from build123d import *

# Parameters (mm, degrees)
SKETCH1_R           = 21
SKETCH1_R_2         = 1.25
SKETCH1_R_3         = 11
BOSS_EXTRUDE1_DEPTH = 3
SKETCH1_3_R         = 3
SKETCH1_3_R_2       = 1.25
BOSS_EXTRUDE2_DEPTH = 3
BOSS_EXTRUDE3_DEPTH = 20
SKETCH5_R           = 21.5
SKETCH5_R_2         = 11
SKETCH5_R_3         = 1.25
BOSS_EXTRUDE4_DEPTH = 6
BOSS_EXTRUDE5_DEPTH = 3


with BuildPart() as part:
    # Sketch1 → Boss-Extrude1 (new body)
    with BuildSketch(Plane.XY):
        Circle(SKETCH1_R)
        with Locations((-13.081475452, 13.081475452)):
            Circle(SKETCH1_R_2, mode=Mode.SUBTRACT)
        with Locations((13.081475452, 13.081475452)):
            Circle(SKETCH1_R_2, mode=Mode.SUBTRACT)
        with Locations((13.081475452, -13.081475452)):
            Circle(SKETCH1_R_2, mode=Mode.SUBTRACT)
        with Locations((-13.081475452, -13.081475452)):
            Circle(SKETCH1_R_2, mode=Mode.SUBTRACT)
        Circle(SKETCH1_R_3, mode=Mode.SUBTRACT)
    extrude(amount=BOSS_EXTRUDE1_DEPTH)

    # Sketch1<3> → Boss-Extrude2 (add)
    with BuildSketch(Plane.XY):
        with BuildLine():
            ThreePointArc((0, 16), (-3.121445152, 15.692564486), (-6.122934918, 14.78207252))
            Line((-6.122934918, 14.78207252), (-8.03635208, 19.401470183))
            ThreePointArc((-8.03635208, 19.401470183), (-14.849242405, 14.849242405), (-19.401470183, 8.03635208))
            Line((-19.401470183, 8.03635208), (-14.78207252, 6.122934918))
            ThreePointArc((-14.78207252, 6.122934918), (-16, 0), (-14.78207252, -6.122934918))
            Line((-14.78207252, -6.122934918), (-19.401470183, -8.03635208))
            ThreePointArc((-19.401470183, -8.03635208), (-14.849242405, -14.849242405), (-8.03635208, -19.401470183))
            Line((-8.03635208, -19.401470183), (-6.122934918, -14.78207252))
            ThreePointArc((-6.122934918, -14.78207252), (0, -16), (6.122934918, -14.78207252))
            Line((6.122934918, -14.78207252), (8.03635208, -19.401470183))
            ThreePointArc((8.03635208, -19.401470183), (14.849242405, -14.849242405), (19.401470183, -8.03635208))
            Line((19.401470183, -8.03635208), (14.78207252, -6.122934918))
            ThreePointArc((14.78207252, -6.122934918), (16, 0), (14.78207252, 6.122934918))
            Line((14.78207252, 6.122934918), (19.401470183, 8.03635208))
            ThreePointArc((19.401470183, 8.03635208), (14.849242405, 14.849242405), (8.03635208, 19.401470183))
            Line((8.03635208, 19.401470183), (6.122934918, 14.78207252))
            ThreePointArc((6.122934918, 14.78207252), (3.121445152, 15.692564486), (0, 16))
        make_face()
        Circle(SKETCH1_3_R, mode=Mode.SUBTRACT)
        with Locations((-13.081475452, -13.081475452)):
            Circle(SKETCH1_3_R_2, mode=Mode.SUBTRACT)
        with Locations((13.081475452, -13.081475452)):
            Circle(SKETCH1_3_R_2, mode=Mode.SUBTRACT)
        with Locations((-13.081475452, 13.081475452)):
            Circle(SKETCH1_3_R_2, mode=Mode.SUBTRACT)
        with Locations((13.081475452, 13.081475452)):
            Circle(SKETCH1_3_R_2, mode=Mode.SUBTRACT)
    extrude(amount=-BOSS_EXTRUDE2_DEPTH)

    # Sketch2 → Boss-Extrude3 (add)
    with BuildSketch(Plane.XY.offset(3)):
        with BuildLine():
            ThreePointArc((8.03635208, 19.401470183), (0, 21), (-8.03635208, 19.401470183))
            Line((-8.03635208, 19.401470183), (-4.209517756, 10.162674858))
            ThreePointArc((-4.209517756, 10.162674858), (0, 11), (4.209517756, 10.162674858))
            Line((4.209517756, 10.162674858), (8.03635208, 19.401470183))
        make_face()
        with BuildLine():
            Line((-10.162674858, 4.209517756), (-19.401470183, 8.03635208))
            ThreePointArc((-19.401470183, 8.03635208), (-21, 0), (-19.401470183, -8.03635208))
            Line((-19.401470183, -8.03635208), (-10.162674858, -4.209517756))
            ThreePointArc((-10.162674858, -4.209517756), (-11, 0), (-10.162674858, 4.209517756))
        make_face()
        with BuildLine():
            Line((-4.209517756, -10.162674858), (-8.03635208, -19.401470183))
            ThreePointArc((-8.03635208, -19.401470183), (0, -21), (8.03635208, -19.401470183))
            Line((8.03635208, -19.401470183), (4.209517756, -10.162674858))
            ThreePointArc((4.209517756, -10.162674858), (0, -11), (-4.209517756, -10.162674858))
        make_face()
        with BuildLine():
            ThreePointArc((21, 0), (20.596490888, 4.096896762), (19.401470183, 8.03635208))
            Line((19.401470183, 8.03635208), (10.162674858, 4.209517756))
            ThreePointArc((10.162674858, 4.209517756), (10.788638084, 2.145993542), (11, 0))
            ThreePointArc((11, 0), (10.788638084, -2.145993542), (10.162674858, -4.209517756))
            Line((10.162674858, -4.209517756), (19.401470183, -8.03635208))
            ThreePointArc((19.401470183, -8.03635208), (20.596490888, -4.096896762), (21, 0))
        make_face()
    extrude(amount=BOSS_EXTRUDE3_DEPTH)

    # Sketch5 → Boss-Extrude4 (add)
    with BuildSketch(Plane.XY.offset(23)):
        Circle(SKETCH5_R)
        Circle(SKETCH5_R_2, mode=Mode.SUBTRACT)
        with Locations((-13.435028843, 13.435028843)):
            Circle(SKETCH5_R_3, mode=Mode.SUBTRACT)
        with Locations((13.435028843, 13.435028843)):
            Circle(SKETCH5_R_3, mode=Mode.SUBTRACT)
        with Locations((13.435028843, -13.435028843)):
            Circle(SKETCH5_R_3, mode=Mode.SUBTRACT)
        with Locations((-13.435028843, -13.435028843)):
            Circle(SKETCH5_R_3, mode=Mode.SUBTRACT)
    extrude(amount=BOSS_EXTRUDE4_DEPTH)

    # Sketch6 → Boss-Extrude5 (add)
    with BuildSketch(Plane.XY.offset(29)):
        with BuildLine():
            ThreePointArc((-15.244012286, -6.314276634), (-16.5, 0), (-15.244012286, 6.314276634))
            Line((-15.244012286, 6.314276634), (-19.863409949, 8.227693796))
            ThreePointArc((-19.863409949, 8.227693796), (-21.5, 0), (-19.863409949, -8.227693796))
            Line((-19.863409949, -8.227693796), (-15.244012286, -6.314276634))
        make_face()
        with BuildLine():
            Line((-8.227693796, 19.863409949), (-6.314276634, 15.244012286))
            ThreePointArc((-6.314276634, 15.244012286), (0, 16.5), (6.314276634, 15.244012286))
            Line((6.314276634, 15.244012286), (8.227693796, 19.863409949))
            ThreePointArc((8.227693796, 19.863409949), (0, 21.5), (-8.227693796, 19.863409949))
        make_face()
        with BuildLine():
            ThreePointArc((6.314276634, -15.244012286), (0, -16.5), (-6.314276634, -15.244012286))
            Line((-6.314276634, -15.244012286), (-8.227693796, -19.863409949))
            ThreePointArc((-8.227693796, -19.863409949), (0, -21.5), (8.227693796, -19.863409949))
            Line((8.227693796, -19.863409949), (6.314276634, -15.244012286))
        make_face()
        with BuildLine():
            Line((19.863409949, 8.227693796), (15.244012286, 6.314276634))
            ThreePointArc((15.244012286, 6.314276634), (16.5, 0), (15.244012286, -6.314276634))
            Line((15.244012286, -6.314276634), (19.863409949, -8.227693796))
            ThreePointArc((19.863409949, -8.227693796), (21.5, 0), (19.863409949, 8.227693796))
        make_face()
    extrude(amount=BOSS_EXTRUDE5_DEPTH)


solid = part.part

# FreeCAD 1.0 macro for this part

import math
import FreeCAD as App
import Part
import Sketcher
Q = App.Units.Quantity

doc = App.newDocument("Part")
body = doc.addObject("PartDesign::Body", "Body")

sketch1 = body.newObject("Sketcher::SketchObject", "Sketch")
sketch1.AttachmentSupport = (doc.getObject("XY_Plane"), [""])
sketch1.MapMode = "FlatFace"
sketch1.addGeometry(Part.Circle(App.Vector(0, 0, 0), App.Vector(0, 0, 1), 21), False)
sketch1.addGeometry(Part.Circle(App.Vector(-13.1, -13.1, 0), App.Vector(0, 0, 1), 1.2), False)
sketch1.addGeometry(Part.Circle(App.Vector(0, 0, 0), App.Vector(0, 0, 1), 11), False)
sketch1.addGeometry(Part.Circle(App.Vector(13.1, -13.1, 0), App.Vector(0, 0, 1), 1.2), False)
sketch1.addGeometry(Part.Circle(App.Vector(-13.1, 13.1, 0), App.Vector(0, 0, 1), 1.2), False)
sketch1.addGeometry(Part.Circle(App.Vector(13.1, 13.1, 0), App.Vector(0, 0, 1), 1.2), False)
sketch1.addConstraint(Sketcher.Constraint("Coincident", 0, 3, -1, 1))
sketch1.addConstraint(Sketcher.Constraint("Coincident", 2, 3, -1, 1))
sketch1.addConstraint(Sketcher.Constraint("Equal", 1, 3))
sketch1.addConstraint(Sketcher.Constraint("Equal", 3, 4))
sketch1.addConstraint(Sketcher.Constraint("Equal", 4, 5))
sketch1.addConstraint(Sketcher.Constraint("Symmetric", 3, 3, 4, 3, -1, 1))
sketch1.addConstraint(Sketcher.Constraint("Symmetric", 1, 3, 5, 3, -1, 1))
sketch1.addConstraint(Sketcher.Constraint("Symmetric", 1, 3, 3, 3, -2))
sketch1.addConstraint(Sketcher.Constraint("Diameter", 0, 42.0))
sketch1.addConstraint(Sketcher.Constraint("Diameter", 2, 22.0))
sketch1.addConstraint(Sketcher.Constraint("Diameter", 1, 2.5))
sketch1.addConstraint(Sketcher.Constraint("DistanceX", 1, 3, 3, 3, 26.162951))
sketch1.addConstraint(Sketcher.Constraint("DistanceY", 1, 3, 4, 3, 26.162951))
pad1 = body.newObject("PartDesign::Pad", "Pad")
pad1.Profile = sketch1
pad1.Length = 3

sketch2 = body.newObject("Sketcher::SketchObject", "Sketch001")
sketch2.AttachmentSupport = (doc.getObject("XY_Plane"), [""])
sketch2.MapMode = "FlatFace"
sketch2.addGeometry(Part.ArcOfCircle(Part.Circle(App.Vector(0, 0, 0), App.Vector(0, 0, 1), 16), math.radians(90), math.radians(112)), False)
sketch2.addGeometry(Part.LineSegment(App.Vector(-6.1, 14.8, 0), App.Vector(-8, 19.4, 0)), False)
sketch2.addGeometry(Part.ArcOfCircle(Part.Circle(App.Vector(0, 0, 0), App.Vector(0, 0, 1), 21), math.radians(113), math.radians(157)), False)
sketch2.addGeometry(Part.LineSegment(App.Vector(-19.4, 8, 0), App.Vector(-14.8, 6.1, 0)), False)
sketch2.addGeometry(Part.ArcOfCircle(Part.Circle(App.Vector(0, 0, 0), App.Vector(0, 0, 1), 16), math.radians(157), math.radians(203)), False)
sketch2.addGeometry(Part.LineSegment(App.Vector(-14.8, -6.1, 0), App.Vector(-19.4, -8, 0)), False)
sketch2.addGeometry(Part.ArcOfCircle(Part.Circle(App.Vector(0, 0, 0), App.Vector(0, 0, 1), 21), math.radians(-157), math.radians(-113)), False)
sketch2.addGeometry(Part.LineSegment(App.Vector(-8, -19.4, 0), App.Vector(-6.1, -14.8, 0)), False)
sketch2.addGeometry(Part.ArcOfCircle(Part.Circle(App.Vector(0, 0, 0), App.Vector(0, 0, 1), 16), math.radians(-113), math.radians(-67)), False)
sketch2.addGeometry(Part.LineSegment(App.Vector(6.1, -14.8, 0), App.Vector(8, -19.4, 0)), False)
sketch2.addGeometry(Part.ArcOfCircle(Part.Circle(App.Vector(0, 0, 0), App.Vector(0, 0, 1), 21), math.radians(-67), math.radians(-23)), False)
sketch2.addGeometry(Part.LineSegment(App.Vector(19.4, -8, 0), App.Vector(14.8, -6.1, 0)), False)
sketch2.addGeometry(Part.ArcOfCircle(Part.Circle(App.Vector(0, 0, 0), App.Vector(0, 0, 1), 16), math.radians(-23), math.radians(23)), False)
sketch2.addGeometry(Part.LineSegment(App.Vector(14.8, 6.1, 0), App.Vector(19.4, 8, 0)), False)
sketch2.addGeometry(Part.ArcOfCircle(Part.Circle(App.Vector(0, 0, 0), App.Vector(0, 0, 1), 21), math.radians(23), math.radians(67)), False)
sketch2.addGeometry(Part.LineSegment(App.Vector(8, 19.4, 0), App.Vector(6.1, 14.8, 0)), False)
sketch2.addGeometry(Part.ArcOfCircle(Part.Circle(App.Vector(0, 0, 0), App.Vector(0, 0, 1), 16), math.radians(68), math.radians(90)), False)
sketch2.addGeometry(Part.Circle(App.Vector(-13.1, -13.1, 0), App.Vector(0, 0, 1), 1.2), False)
sketch2.addGeometry(Part.Circle(App.Vector(0, 0, 0), App.Vector(0, 0, 1), 3), False)
sketch2.addGeometry(Part.Circle(App.Vector(13.1, -13.1, 0), App.Vector(0, 0, 1), 1.2), False)
sketch2.addGeometry(Part.Circle(App.Vector(-13.1, 13.1, 0), App.Vector(0, 0, 1), 1.2), False)
sketch2.addGeometry(Part.Circle(App.Vector(13.1, 13.1, 0), App.Vector(0, 0, 1), 1.2), False)
sketch2.addConstraint(Sketcher.Constraint("Coincident", 0, 2, 1, 1))
sketch2.addConstraint(Sketcher.Constraint("Coincident", 1, 2, 2, 1))
sketch2.addConstraint(Sketcher.Constraint("Coincident", 2, 2, 3, 1))
sketch2.addConstraint(Sketcher.Constraint("Coincident", 3, 2, 4, 1))
sketch2.addConstraint(Sketcher.Constraint("Coincident", 4, 2, 5, 1))
sketch2.addConstraint(Sketcher.Constraint("Coincident", 5, 2, 6, 1))
sketch2.addConstraint(Sketcher.Constraint("Coincident", 6, 2, 7, 1))
sketch2.addConstraint(Sketcher.Constraint("Coincident", 7, 2, 8, 1))
sketch2.addConstraint(Sketcher.Constraint("Coincident", 8, 2, 9, 1))
sketch2.addConstraint(Sketcher.Constraint("Coincident", 9, 2, 10, 1))
sketch2.addConstraint(Sketcher.Constraint("Coincident", 10, 2, 11, 1))
sketch2.addConstraint(Sketcher.Constraint("Coincident", 11, 2, 12, 1))
sketch2.addConstraint(Sketcher.Constraint("Coincident", 12, 2, 13, 1))
sketch2.addConstraint(Sketcher.Constraint("Coincident", 13, 2, 14, 1))
sketch2.addConstraint(Sketcher.Constraint("Coincident", 14, 2, 15, 1))
sketch2.addConstraint(Sketcher.Constraint("Coincident", 15, 2, 16, 1))
sketch2.addConstraint(Sketcher.Constraint("Tangent", 16, 2, 0, 1))
sketch2.addConstraint(Sketcher.Constraint("Coincident", 0, 3, -1, 1))
sketch2.addConstraint(Sketcher.Constraint("Coincident", 2, 3, -1, 1))
sketch2.addConstraint(Sketcher.Constraint("Coincident", 4, 3, -1, 1))
sketch2.addConstraint(Sketcher.Constraint("Coincident", 6, 3, -1, 1))
sketch2.addConstraint(Sketcher.Constraint("Coincident", 8, 3, -1, 1))
sketch2.addConstraint(Sketcher.Constraint("Coincident", 10, 3, -1, 1))
sketch2.addConstraint(Sketcher.Constraint("Coincident", 12, 3, -1, 1))
sketch2.addConstraint(Sketcher.Constraint("Coincident", 14, 3, -1, 1))
sketch2.addConstraint(Sketcher.Constraint("Coincident", 18, 3, -1, 1))
sketch2.addConstraint(Sketcher.Constraint("Equal", 0, 4))
sketch2.addConstraint(Sketcher.Constraint("Equal", 2, 6))
sketch2.addConstraint(Sketcher.Constraint("Equal", 4, 8))
sketch2.addConstraint(Sketcher.Constraint("Equal", 6, 10))
sketch2.addConstraint(Sketcher.Constraint("Equal", 8, 12))
sketch2.addConstraint(Sketcher.Constraint("Equal", 10, 14))
sketch2.addConstraint(Sketcher.Constraint("Equal", 12, 16))
sketch2.addConstraint(Sketcher.Constraint("Equal", 17, 19))
sketch2.addConstraint(Sketcher.Constraint("Equal", 19, 20))
sketch2.addConstraint(Sketcher.Constraint("Equal", 20, 21))
sketch2.addConstraint(Sketcher.Constraint("Symmetric", 19, 3, 20, 3, -1, 1))
sketch2.addConstraint(Sketcher.Constraint("Symmetric", 17, 3, 21, 3, -1, 1))
sketch2.addConstraint(Sketcher.Constraint("Symmetric", 17, 3, 19, 3, -2))
sketch2.addConstraint(Sketcher.Constraint("PointOnObject", 16, 2, -2))
sketch2.addConstraint(Sketcher.Constraint("Perpendicular", 1, 5))
sketch2.addConstraint(Sketcher.Constraint("Perpendicular", 3, 7))
sketch2.addConstraint(Sketcher.Constraint("Perpendicular", 5, 9))
sketch2.addConstraint(Sketcher.Constraint("Perpendicular", 7, 11))
sketch2.addConstraint(Sketcher.Constraint("Perpendicular", 9, 13))
sketch2.addConstraint(Sketcher.Constraint("Perpendicular", 11, 15))
sketch2.addConstraint(Sketcher.Constraint("Horizontal", 7, 2, 8, 2))
sketch2.addConstraint(Sketcher.Constraint("Horizontal", 6, 2, 9, 2))
sketch2.addConstraint(Sketcher.Constraint("Horizontal", 5, 2, 10, 2))
sketch2.addConstraint(Sketcher.Constraint("Horizontal", 3, 2, 12, 2))
sketch2.addConstraint(Sketcher.Constraint("Horizontal", 1, 2, 14, 2))
sketch2.addConstraint(Sketcher.Constraint("Vertical", 3, 2, 4, 2))
sketch2.addConstraint(Sketcher.Constraint("Vertical", 1, 2, 6, 2))
sketch2.addConstraint(Sketcher.Constraint("Diameter", 18, 6.0))
sketch2.addConstraint(Sketcher.Constraint("Radius", 0, 16.0))
sketch2.addConstraint(Sketcher.Constraint("Radius", 2, 21.0))
sketch2.addConstraint(Sketcher.Constraint("Diameter", 17, 2.5))
sketch2.addConstraint(Sketcher.Constraint("Angle", 1, Q("112.5 deg")))
sketch2.addConstraint(Sketcher.Constraint("DistanceY", -1, 1, 1, 2, 19.40147))
sketch2.addConstraint(Sketcher.Constraint("DistanceX", 2, 2, -1, 1, 19.40147))
sketch2.addConstraint(Sketcher.Constraint("DistanceX", 20, 3, 0, 2, 6.958541))
sketch2.addConstraint(Sketcher.Constraint("DistanceY", 3, 2, 20, 3, 6.958541))
pad2 = body.newObject("PartDesign::Pad", "Pad001")
pad2.Profile = sketch2
pad2.Length = 3
pad2.Reversed = True

sketch3 = body.newObject("Sketcher::SketchObject", "Sketch002")
sketch3.AttachmentSupport = (doc.getObject("XY_Plane"), [""])
sketch3.MapMode = "FlatFace"
sketch3.AttachmentOffset = App.Placement(App.Vector(0, 0, 3), App.Rotation())
sketch3.addGeometry(Part.ArcOfCircle(Part.Circle(App.Vector(0, 0, 0), App.Vector(0, 0, 1), 21), math.radians(68), math.radians(112)), False)
sketch3.addGeometry(Part.LineSegment(App.Vector(-8, 19.4, 0), App.Vector(-4.2, 10.2, 0)), False)
sketch3.addGeometry(Part.ArcOfCircle(Part.Circle(App.Vector(0, 0, 0), App.Vector(0, 0, 1), 11), math.radians(68), math.radians(112)), False)
sketch3.addGeometry(Part.LineSegment(App.Vector(4.2, 10.2, 0), App.Vector(8, 19.4, 0)), False)
sketch3.addGeometry(Part.LineSegment(App.Vector(-10.2, 4.2, 0), App.Vector(-19.4, 8, 0)), False)
sketch3.addGeometry(Part.ArcOfCircle(Part.Circle(App.Vector(0, 0, 0), App.Vector(0, 0, 1), 21), math.radians(158), math.radians(202)), False)
sketch3.addGeometry(Part.LineSegment(App.Vector(-19.4, -8, 0), App.Vector(-10.2, -4.2, 0)), False)
sketch3.addGeometry(Part.ArcOfCircle(Part.Circle(App.Vector(0, 0, 0), App.Vector(0, 0, 1), 11), math.radians(158), math.radians(202)), False)
sketch3.addGeometry(Part.LineSegment(App.Vector(-4.2, -10.2, 0), App.Vector(-8, -19.4, 0)), False)
sketch3.addGeometry(Part.ArcOfCircle(Part.Circle(App.Vector(0, 0, 0), App.Vector(0, 0, 1), 21), math.radians(-112), math.radians(-68)), False)
sketch3.addGeometry(Part.LineSegment(App.Vector(8, -19.4, 0), App.Vector(4.2, -10.2, 0)), False)
sketch3.addGeometry(Part.ArcOfCircle(Part.Circle(App.Vector(0, 0, 0), App.Vector(0, 0, 1), 11), math.radians(-112), math.radians(-68)), False)
sketch3.addGeometry(Part.ArcOfCircle(Part.Circle(App.Vector(0, 0, 0), App.Vector(0, 0, 1), 21), math.radians(0), math.radians(22)), False)
sketch3.addGeometry(Part.LineSegment(App.Vector(19.4, 8, 0), App.Vector(10.2, 4.2, 0)), False)
sketch3.addGeometry(Part.ArcOfCircle(Part.Circle(App.Vector(0, 0, 0), App.Vector(0, 0, 1), 11), math.radians(0), math.radians(22)), False)
sketch3.addGeometry(Part.ArcOfCircle(Part.Circle(App.Vector(0, 0, 0), App.Vector(0, 0, 1), 11), math.radians(-22), math.radians(0)), False)
sketch3.addGeometry(Part.LineSegment(App.Vector(10.2, -4.2, 0), App.Vector(19.4, -8, 0)), False)
sketch3.addGeometry(Part.ArcOfCircle(Part.Circle(App.Vector(0, 0, 0), App.Vector(0, 0, 1), 21), math.radians(-22), math.radians(0)), False)
sketch3.addConstraint(Sketcher.Constraint("Coincident", 0, 2, 1, 1))
sketch3.addConstraint(Sketcher.Constraint("Coincident", 1, 2, 2, 2))
sketch3.addConstraint(Sketcher.Constraint("Coincident", 2, 1, 3, 1))
sketch3.addConstraint(Sketcher.Constraint("Coincident", 3, 2, 0, 1))
sketch3.addConstraint(Sketcher.Constraint("Coincident", 4, 2, 5, 1))
sketch3.addConstraint(Sketcher.Constraint("Coincident", 5, 2, 6, 1))
sketch3.addConstraint(Sketcher.Constraint("Coincident", 6, 2, 7, 2))
sketch3.addConstraint(Sketcher.Constraint("Coincident", 7, 1, 4, 1))
sketch3.addConstraint(Sketcher.Constraint("Coincident", 8, 2, 9, 1))
sketch3.addConstraint(Sketcher.Constraint("Coincident", 9, 2, 10, 1))
sketch3.addConstraint(Sketcher.Constraint("Coincident", 10, 2, 11, 2))
sketch3.addConstraint(Sketcher.Constraint("Coincident", 11, 1, 8, 1))
sketch3.addConstraint(Sketcher.Constraint("Coincident", 12, 2, 13, 1))
sketch3.addConstraint(Sketcher.Constraint("Coincident", 13, 2, 14, 2))
sketch3.addConstraint(Sketcher.Constraint("Tangent", 14, 1, 15, 2))
sketch3.addConstraint(Sketcher.Constraint("Coincident", 15, 1, 16, 1))
sketch3.addConstraint(Sketcher.Constraint("Coincident", 16, 2, 17, 1))
sketch3.addConstraint(Sketcher.Constraint("Tangent", 17, 2, 12, 1))
sketch3.addConstraint(Sketcher.Constraint("Coincident", 0, 3, -1, 1))
sketch3.addConstraint(Sketcher.Constraint("Coincident", 2, 3, -1, 1))
sketch3.addConstraint(Sketcher.Constraint("Coincident", 5, 3, -1, 1))
sketch3.addConstraint(Sketcher.Constraint("Coincident", 7, 3, -1, 1))
sketch3.addConstraint(Sketcher.Constraint("Coincident", 9, 3, -1, 1))
sketch3.addConstraint(Sketcher.Constraint("Coincident", 11, 3, -1, 1))
sketch3.addConstraint(Sketcher.Constraint("Coincident", 12, 3, -1, 1))
sketch3.addConstraint(Sketcher.Constraint("Coincident", 14, 3, -1, 1))
sketch3.addConstraint(Sketcher.Constraint("Equal", 0, 5))
sketch3.addConstraint(Sketcher.Constraint("Equal", 2, 7))
sketch3.addConstraint(Sketcher.Constraint("Equal", 5, 9))
sketch3.addConstraint(Sketcher.Constraint("Equal", 7, 11))
sketch3.addConstraint(Sketcher.Constraint("Equal", 9, 12))
sketch3.addConstraint(Sketcher.Constraint("Equal", 11, 14))
sketch3.addConstraint(Sketcher.Constraint("Equal", 14, 15))
sketch3.addConstraint(Sketcher.Constraint("Equal", 12, 17))
sketch3.addConstraint(Sketcher.Constraint("PointOnObject", 14, 1, -1))
sketch3.addConstraint(Sketcher.Constraint("PointOnObject", 17, 2, -1))
sketch3.addConstraint(Sketcher.Constraint("Perpendicular", 3, 4))
sketch3.addConstraint(Sketcher.Constraint("Perpendicular", 1, 6))
sketch3.addConstraint(Sketcher.Constraint("Perpendicular", 4, 8))
sketch3.addConstraint(Sketcher.Constraint("Perpendicular", 6, 10))
sketch3.addConstraint(Sketcher.Constraint("Perpendicular", 10, 13))
sketch3.addConstraint(Sketcher.Constraint("Perpendicular", 8, 16))
sketch3.addConstraint(Sketcher.Constraint("Horizontal", 1, 2, 2, 1))
sketch3.addConstraint(Sketcher.Constraint("Horizontal", 0, 2, 3, 2))
sketch3.addConstraint(Sketcher.Constraint("Horizontal", 8, 2, 9, 2))
sketch3.addConstraint(Sketcher.Constraint("Horizontal", 4, 2, 12, 2))
sketch3.addConstraint(Sketcher.Constraint("Horizontal", 6, 2, 15, 1))
sketch3.addConstraint(Sketcher.Constraint("Vertical", 4, 2, 5, 2))
sketch3.addConstraint(Sketcher.Constraint("Vertical", 0, 2, 8, 2))
sketch3.addConstraint(Sketcher.Constraint("Radius", 0, 21.0))
sketch3.addConstraint(Sketcher.Constraint("Radius", 2, 11.0))
sketch3.addConstraint(Sketcher.Constraint("Angle", 1, Q("-67.5 deg")))
sketch3.addConstraint(Sketcher.Constraint("DistanceY", -1, 1, 0, 2, 19.40147))
sketch3.addConstraint(Sketcher.Constraint("DistanceX", 4, 2, -1, 1, 19.40147))
pad3 = body.newObject("PartDesign::Pad", "Pad002")
pad3.Profile = sketch3
pad3.Length = 20

sketch4 = body.newObject("Sketcher::SketchObject", "Sketch003")
sketch4.AttachmentSupport = (doc.getObject("XY_Plane"), [""])
sketch4.MapMode = "FlatFace"
sketch4.AttachmentOffset = App.Placement(App.Vector(0, 0, 23), App.Rotation())
sketch4.addGeometry(Part.Circle(App.Vector(0, 0, 0), App.Vector(0, 0, 1), 21.5), False)
sketch4.addGeometry(Part.Circle(App.Vector(-13.4, -13.4, 0), App.Vector(0, 0, 1), 1.2), False)
sketch4.addGeometry(Part.Circle(App.Vector(0, 0, 0), App.Vector(0, 0, 1), 11), False)
sketch4.addGeometry(Part.Circle(App.Vector(13.4, -13.4, 0), App.Vector(0, 0, 1), 1.2), False)
sketch4.addGeometry(Part.Circle(App.Vector(-13.4, 13.4, 0), App.Vector(0, 0, 1), 1.2), False)
sketch4.addGeometry(Part.Circle(App.Vector(13.4, 13.4, 0), App.Vector(0, 0, 1), 1.2), False)
sketch4.addConstraint(Sketcher.Constraint("Coincident", 0, 3, -1, 1))
sketch4.addConstraint(Sketcher.Constraint("Coincident", 2, 3, -1, 1))
sketch4.addConstraint(Sketcher.Constraint("Equal", 1, 3))
sketch4.addConstraint(Sketcher.Constraint("Equal", 3, 4))
sketch4.addConstraint(Sketcher.Constraint("Equal", 4, 5))
sketch4.addConstraint(Sketcher.Constraint("Symmetric", 3, 3, 4, 3, -1, 1))
sketch4.addConstraint(Sketcher.Constraint("Symmetric", 1, 3, 5, 3, -1, 1))
sketch4.addConstraint(Sketcher.Constraint("Symmetric", 1, 3, 3, 3, -2))
sketch4.addConstraint(Sketcher.Constraint("Diameter", 0, 43.0))
sketch4.addConstraint(Sketcher.Constraint("Diameter", 2, 22.0))
sketch4.addConstraint(Sketcher.Constraint("Diameter", 1, 2.5))
sketch4.addConstraint(Sketcher.Constraint("DistanceX", 1, 3, -1, 1, 13.435029))
sketch4.addConstraint(Sketcher.Constraint("DistanceY", 1, 3, -1, 1, 13.435029))
pad4 = body.newObject("PartDesign::Pad", "Pad003")
pad4.Profile = sketch4
pad4.Length = 6

sketch5 = body.newObject("Sketcher::SketchObject", "Sketch004")
sketch5.AttachmentSupport = (doc.getObject("XY_Plane"), [""])
sketch5.MapMode = "FlatFace"
sketch5.AttachmentOffset = App.Placement(App.Vector(0, 0, 29), App.Rotation())
sketch5.addGeometry(Part.ArcOfCircle(Part.Circle(App.Vector(0, 0, 0), App.Vector(0, 0, 1), 16), math.radians(157), math.radians(203)), False)
sketch5.addGeometry(Part.LineSegment(App.Vector(-15, 6, 0), App.Vector(-20, 8, 0)), False)
sketch5.addGeometry(Part.ArcOfCircle(Part.Circle(App.Vector(0, 0, 0), App.Vector(0, 0, 1), 22), math.radians(158), math.radians(202)), False)
sketch5.addGeometry(Part.LineSegment(App.Vector(-20, -8, 0), App.Vector(-15, -6, 0)), False)
sketch5.addGeometry(Part.LineSegment(App.Vector(-8, 20, 0), App.Vector(-6, 15, 0)), False)
sketch5.addGeometry(Part.ArcOfCircle(Part.Circle(App.Vector(0, 0, 0), App.Vector(0, 0, 1), 16), math.radians(67), math.radians(113)), False)
sketch5.addGeometry(Part.LineSegment(App.Vector(6, 15, 0), App.Vector(8, 20, 0)), False)
sketch5.addGeometry(Part.ArcOfCircle(Part.Circle(App.Vector(0, 0, 0), App.Vector(0, 0, 1), 22), math.radians(68), math.radians(112)), False)
sketch5.addGeometry(Part.ArcOfCircle(Part.Circle(App.Vector(0, 0, 0), App.Vector(0, 0, 1), 16), math.radians(-113), math.radians(-67)), False)
sketch5.addGeometry(Part.LineSegment(App.Vector(-6, -15, 0), App.Vector(-8, -20, 0)), False)
sketch5.addGeometry(Part.ArcOfCircle(Part.Circle(App.Vector(0, 0, 0), App.Vector(0, 0, 1), 22), math.radians(-112), math.radians(-68)), False)
sketch5.addGeometry(Part.LineSegment(App.Vector(8, -20, 0), App.Vector(6, -15, 0)), False)
sketch5.addGeometry(Part.LineSegment(App.Vector(20, 8, 0), App.Vector(15, 6, 0)), False)
sketch5.addGeometry(Part.ArcOfCircle(Part.Circle(App.Vector(0, 0, 0), App.Vector(0, 0, 1), 16), math.radians(-23), math.radians(23)), False)
sketch5.addGeometry(Part.LineSegment(App.Vector(15, -6, 0), App.Vector(20, -8, 0)), False)
sketch5.addGeometry(Part.ArcOfCircle(Part.Circle(App.Vector(0, 0, 0), App.Vector(0, 0, 1), 22), math.radians(-22), math.radians(22)), False)
sketch5.addConstraint(Sketcher.Constraint("Coincident", 0, 1, 1, 1))
sketch5.addConstraint(Sketcher.Constraint("Coincident", 1, 2, 2, 1))
sketch5.addConstraint(Sketcher.Constraint("Coincident", 2, 2, 3, 1))
sketch5.addConstraint(Sketcher.Constraint("Coincident", 3, 2, 0, 2))
sketch5.addConstraint(Sketcher.Constraint("Coincident", 4, 2, 5, 2))
sketch5.addConstraint(Sketcher.Constraint("Coincident", 5, 1, 6, 1))
sketch5.addConstraint(Sketcher.Constraint("Coincident", 6, 2, 7, 1))
sketch5.addConstraint(Sketcher.Constraint("Coincident", 7, 2, 4, 1))
sketch5.addConstraint(Sketcher.Constraint("Coincident", 8, 1, 9, 1))
sketch5.addConstraint(Sketcher.Constraint("Coincident", 9, 2, 10, 1))
sketch5.addConstraint(Sketcher.Constraint("Coincident", 10, 2, 11, 1))
sketch5.addConstraint(Sketcher.Constraint("Coincident", 11, 2, 8, 2))
sketch5.addConstraint(Sketcher.Constraint("Coincident", 12, 2, 13, 2))
sketch5.addConstraint(Sketcher.Constraint("Coincident", 13, 1, 14, 1))
sketch5.addConstraint(Sketcher.Constraint("Coincident", 14, 2, 15, 1))
sketch5.addConstraint(Sketcher.Constraint("Coincident", 15, 2, 12, 1))
sketch5.addConstraint(Sketcher.Constraint("Coincident", 0, 3, -1, 1))
sketch5.addConstraint(Sketcher.Constraint("Coincident", 2, 3, -1, 1))
sketch5.addConstraint(Sketcher.Constraint("Coincident", 5, 3, -1, 1))
sketch5.addConstraint(Sketcher.Constraint("Coincident", 7, 3, -1, 1))
sketch5.addConstraint(Sketcher.Constraint("Coincident", 8, 3, -1, 1))
sketch5.addConstraint(Sketcher.Constraint("Coincident", 10, 3, -1, 1))
sketch5.addConstraint(Sketcher.Constraint("Coincident", 13, 3, -1, 1))
sketch5.addConstraint(Sketcher.Constraint("Coincident", 15, 3, -1, 1))
sketch5.addConstraint(Sketcher.Constraint("Equal", 0, 5))
sketch5.addConstraint(Sketcher.Constraint("Equal", 2, 7))
sketch5.addConstraint(Sketcher.Constraint("Equal", 5, 8))
sketch5.addConstraint(Sketcher.Constraint("Equal", 7, 10))
sketch5.addConstraint(Sketcher.Constraint("Equal", 8, 13))
sketch5.addConstraint(Sketcher.Constraint("Equal", 10, 15))
sketch5.addConstraint(Sketcher.Constraint("Perpendicular", 3, 4))
sketch5.addConstraint(Sketcher.Constraint("Perpendicular", 1, 6))
sketch5.addConstraint(Sketcher.Constraint("Parallel", 6, 9))
sketch5.addConstraint(Sketcher.Constraint("Parallel", 4, 11))
sketch5.addConstraint(Sketcher.Constraint("Perpendicular", 11, 12))
sketch5.addConstraint(Sketcher.Constraint("Perpendicular", 9, 14))
sketch5.addConstraint(Sketcher.Constraint("Horizontal", 4, 2, 5, 1))
sketch5.addConstraint(Sketcher.Constraint("Horizontal", 6, 2, 7, 2))
sketch5.addConstraint(Sketcher.Constraint("Horizontal", 9, 2, 10, 2))
sketch5.addConstraint(Sketcher.Constraint("Horizontal", 0, 1, 12, 2))
sketch5.addConstraint(Sketcher.Constraint("Horizontal", 3, 2, 13, 1))
sketch5.addConstraint(Sketcher.Constraint("Vertical", 1, 2, 2, 2))
sketch5.addConstraint(Sketcher.Constraint("Vertical", 4, 2, 8, 1))
sketch5.addConstraint(Sketcher.Constraint("Radius", 0, 16.5))
sketch5.addConstraint(Sketcher.Constraint("Radius", 2, 21.5))
sketch5.addConstraint(Sketcher.Constraint("Angle", 1, Q("157.5 deg")))
sketch5.addConstraint(Sketcher.Constraint("DistanceX", 1, 2, -1, 1, 19.86341))
sketch5.addConstraint(Sketcher.Constraint("DistanceY", -1, 1, 6, 2, 19.86341))
pad5 = body.newObject("PartDesign::Pad", "Pad004")
pad5.Profile = sketch5
pad5.Length = 3

doc.recompute()
